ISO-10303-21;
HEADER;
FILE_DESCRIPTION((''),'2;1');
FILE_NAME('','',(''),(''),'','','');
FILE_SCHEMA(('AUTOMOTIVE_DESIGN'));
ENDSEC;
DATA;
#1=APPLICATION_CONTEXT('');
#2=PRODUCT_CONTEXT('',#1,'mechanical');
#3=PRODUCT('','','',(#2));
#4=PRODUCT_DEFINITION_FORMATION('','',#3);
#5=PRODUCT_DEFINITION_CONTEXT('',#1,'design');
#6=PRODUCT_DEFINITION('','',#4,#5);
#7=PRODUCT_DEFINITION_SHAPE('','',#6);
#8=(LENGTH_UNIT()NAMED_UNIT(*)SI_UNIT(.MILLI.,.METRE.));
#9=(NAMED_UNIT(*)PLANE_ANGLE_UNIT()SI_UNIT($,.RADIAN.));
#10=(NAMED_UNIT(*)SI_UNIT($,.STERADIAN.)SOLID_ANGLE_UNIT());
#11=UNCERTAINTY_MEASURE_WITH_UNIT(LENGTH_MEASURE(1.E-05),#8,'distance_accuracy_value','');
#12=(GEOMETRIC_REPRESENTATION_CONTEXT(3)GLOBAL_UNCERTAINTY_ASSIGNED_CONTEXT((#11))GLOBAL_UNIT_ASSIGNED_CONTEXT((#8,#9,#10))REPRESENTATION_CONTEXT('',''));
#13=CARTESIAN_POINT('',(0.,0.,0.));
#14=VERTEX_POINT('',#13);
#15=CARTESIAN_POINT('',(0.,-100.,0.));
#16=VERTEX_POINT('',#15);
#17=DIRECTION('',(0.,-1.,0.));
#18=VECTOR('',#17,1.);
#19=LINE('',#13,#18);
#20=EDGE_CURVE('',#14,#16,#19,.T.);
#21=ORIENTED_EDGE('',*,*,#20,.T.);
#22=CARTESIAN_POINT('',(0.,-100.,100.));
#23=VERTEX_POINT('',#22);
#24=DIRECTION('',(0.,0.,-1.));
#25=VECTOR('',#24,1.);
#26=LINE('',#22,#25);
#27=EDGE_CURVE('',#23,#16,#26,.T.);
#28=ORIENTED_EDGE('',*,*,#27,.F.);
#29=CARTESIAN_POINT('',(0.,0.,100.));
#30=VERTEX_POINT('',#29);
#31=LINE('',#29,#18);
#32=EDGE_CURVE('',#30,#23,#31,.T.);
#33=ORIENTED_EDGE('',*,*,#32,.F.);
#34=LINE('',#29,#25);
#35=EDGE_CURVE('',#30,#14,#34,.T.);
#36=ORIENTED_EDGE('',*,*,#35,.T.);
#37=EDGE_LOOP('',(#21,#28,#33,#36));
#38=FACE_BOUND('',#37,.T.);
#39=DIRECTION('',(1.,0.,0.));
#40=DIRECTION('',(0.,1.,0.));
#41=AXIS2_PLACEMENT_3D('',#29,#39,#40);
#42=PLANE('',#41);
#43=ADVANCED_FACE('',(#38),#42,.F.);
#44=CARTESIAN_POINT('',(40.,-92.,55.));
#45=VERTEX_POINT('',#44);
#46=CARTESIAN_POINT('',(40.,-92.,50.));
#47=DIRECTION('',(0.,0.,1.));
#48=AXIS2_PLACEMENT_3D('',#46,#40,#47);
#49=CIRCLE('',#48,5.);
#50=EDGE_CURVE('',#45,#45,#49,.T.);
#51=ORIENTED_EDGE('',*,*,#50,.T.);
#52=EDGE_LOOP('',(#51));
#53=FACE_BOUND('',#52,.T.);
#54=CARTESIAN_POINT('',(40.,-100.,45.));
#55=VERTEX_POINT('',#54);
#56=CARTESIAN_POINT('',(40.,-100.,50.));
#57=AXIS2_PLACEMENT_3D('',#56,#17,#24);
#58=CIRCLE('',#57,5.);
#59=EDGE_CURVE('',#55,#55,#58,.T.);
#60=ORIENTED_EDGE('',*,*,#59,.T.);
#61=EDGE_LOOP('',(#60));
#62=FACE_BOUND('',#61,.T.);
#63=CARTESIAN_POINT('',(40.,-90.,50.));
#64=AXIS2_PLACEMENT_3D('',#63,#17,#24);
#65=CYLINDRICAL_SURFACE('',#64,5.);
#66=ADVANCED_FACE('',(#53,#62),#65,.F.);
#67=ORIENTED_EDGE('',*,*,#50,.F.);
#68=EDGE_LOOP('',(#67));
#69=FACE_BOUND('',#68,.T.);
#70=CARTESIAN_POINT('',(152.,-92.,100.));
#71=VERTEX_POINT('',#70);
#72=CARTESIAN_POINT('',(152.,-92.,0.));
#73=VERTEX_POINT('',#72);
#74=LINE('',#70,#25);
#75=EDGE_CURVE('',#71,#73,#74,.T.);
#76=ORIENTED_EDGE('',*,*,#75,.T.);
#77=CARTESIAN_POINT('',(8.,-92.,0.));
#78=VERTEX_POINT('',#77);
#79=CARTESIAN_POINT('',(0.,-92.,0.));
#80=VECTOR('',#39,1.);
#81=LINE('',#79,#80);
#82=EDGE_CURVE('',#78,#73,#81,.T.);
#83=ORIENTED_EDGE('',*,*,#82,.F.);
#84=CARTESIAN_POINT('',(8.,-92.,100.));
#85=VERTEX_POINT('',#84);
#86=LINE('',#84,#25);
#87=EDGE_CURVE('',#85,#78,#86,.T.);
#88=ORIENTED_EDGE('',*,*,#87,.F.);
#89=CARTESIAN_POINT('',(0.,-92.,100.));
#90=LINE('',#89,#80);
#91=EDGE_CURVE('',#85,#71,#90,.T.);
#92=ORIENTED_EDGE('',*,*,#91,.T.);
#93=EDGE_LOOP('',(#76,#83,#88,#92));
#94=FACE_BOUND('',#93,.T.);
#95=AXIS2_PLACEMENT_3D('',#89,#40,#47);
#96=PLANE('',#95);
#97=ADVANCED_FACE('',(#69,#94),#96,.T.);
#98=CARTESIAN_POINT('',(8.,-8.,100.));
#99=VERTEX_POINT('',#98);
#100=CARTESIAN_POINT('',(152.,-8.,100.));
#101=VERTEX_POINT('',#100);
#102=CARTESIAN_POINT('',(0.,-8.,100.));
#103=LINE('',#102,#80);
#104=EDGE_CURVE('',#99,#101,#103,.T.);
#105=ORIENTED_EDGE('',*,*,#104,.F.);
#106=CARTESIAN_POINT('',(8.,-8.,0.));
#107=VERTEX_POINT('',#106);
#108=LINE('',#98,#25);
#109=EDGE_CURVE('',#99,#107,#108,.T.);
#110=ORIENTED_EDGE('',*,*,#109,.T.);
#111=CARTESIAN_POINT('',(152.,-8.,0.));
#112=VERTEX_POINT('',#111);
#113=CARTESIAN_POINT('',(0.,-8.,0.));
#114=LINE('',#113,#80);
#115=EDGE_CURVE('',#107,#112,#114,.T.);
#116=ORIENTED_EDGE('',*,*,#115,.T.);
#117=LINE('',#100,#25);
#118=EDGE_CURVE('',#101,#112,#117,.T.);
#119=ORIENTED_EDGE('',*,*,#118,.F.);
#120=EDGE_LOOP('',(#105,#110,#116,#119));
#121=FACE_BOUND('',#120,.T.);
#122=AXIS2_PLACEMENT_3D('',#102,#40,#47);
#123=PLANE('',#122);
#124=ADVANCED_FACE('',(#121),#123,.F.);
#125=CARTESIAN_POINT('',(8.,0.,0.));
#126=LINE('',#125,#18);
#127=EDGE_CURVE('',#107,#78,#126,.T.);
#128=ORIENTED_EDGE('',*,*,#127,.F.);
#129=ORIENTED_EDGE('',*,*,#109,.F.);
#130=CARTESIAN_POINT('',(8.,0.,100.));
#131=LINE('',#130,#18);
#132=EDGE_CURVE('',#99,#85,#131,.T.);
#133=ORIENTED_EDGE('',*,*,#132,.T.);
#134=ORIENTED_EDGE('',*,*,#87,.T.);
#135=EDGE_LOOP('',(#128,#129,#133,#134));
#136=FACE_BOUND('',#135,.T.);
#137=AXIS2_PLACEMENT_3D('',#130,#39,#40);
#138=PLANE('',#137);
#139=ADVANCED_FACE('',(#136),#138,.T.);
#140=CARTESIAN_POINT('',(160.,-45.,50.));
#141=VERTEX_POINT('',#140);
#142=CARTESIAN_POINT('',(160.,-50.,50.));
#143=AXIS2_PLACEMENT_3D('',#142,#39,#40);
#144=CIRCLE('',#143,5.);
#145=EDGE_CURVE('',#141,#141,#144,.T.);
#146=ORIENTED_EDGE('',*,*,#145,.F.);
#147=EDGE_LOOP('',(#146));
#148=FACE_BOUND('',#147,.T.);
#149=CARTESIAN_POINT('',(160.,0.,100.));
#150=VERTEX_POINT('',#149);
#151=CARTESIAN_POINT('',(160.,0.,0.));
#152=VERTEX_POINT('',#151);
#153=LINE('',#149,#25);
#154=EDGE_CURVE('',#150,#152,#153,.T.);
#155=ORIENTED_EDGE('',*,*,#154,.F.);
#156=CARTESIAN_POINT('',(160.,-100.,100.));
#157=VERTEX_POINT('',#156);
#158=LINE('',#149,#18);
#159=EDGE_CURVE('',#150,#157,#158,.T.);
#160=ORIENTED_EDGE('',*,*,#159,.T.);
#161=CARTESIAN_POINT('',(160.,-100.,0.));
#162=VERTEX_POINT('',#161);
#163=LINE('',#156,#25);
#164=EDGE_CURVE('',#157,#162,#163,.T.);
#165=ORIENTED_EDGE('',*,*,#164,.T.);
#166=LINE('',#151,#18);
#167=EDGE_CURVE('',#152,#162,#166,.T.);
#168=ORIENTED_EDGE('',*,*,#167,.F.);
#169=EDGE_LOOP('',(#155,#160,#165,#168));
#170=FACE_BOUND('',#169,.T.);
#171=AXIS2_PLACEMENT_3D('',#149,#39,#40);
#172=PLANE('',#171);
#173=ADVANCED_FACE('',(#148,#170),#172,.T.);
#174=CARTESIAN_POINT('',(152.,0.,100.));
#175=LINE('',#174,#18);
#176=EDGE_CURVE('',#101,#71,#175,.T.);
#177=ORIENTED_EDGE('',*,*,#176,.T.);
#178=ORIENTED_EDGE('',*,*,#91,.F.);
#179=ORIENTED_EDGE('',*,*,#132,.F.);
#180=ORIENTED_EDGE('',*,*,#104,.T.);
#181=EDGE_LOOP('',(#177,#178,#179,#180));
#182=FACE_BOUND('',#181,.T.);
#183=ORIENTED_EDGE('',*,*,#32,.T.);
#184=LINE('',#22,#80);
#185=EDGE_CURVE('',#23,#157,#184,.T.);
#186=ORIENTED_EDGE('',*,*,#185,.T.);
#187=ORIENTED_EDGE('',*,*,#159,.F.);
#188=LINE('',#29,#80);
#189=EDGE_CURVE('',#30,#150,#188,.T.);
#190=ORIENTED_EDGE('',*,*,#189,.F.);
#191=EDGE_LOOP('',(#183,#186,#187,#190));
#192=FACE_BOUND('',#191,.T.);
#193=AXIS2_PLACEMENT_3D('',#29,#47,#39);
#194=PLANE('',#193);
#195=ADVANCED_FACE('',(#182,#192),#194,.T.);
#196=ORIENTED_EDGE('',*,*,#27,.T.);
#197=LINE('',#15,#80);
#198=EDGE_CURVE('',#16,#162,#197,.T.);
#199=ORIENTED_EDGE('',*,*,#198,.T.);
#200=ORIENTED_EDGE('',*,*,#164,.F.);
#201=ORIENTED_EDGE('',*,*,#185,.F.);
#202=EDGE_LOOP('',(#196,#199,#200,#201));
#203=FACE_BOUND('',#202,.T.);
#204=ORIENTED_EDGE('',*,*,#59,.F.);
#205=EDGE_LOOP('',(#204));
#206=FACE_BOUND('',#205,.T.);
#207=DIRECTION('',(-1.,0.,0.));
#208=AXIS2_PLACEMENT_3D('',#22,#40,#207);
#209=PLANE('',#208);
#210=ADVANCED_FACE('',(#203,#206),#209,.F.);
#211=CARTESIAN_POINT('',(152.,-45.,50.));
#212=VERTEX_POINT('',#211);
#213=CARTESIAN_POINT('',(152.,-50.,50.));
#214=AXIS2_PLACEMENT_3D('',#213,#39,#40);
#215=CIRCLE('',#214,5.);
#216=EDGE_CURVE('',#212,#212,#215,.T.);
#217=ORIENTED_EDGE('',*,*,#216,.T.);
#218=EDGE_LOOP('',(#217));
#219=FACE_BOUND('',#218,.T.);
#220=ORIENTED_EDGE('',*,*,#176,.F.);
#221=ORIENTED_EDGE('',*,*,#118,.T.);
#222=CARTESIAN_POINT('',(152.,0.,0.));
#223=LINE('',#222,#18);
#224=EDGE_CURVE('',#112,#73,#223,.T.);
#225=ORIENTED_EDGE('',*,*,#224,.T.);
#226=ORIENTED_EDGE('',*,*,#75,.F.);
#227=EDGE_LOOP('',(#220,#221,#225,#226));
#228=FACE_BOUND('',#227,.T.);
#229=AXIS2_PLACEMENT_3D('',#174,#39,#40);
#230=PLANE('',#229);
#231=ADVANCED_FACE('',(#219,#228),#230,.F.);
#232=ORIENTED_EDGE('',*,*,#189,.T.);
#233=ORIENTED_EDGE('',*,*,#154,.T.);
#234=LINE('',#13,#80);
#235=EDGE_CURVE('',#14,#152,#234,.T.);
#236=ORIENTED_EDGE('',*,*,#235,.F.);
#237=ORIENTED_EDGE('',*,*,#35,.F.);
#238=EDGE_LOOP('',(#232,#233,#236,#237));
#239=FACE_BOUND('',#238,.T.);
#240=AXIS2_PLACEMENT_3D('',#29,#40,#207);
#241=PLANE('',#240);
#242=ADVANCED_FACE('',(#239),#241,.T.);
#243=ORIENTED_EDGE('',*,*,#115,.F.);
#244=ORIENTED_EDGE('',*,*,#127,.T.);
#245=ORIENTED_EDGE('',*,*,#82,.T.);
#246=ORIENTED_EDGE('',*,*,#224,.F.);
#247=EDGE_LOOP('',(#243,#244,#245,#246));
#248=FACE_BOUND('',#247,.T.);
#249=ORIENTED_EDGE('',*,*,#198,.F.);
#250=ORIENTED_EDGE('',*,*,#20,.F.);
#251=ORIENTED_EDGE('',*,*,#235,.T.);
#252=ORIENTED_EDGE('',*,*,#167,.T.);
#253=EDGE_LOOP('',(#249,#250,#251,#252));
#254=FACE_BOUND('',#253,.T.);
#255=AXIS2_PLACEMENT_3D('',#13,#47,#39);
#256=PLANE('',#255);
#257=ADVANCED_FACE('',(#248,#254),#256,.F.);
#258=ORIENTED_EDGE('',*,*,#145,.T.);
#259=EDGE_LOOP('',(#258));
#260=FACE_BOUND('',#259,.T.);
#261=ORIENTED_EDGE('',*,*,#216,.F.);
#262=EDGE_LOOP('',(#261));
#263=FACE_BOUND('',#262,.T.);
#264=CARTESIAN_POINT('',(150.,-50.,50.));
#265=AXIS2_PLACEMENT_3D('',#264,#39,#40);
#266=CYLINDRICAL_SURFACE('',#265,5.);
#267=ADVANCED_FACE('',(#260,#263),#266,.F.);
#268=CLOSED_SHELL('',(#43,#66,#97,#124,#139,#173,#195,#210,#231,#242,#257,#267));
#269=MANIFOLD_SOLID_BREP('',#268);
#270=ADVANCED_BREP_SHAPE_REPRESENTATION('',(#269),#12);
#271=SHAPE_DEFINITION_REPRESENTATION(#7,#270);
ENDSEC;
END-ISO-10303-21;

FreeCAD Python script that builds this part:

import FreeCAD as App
import Part
import Sketcher
from FreeCAD import Vector

doc = App.newDocument("Part")
body = doc.addObject("PartDesign::Body", "Body")

sketch1 = body.newObject("Sketcher::SketchObject", "Sketch")
sketch1.AttachmentSupport = (doc.getObject("XY_Plane"), [""])
sketch1.MapMode = "FlatFace"
sketch1.addGeometry([
    Part.LineSegment(Vector(0, 0, 0), Vector(0, -100, 0)),
    Part.LineSegment(Vector(0, -100, 0), Vector(160, -100, 0)),
    Part.LineSegment(Vector(160, -100, 0), Vector(160, 0, 0)),
    Part.LineSegment(Vector(160, 0, 0), Vector(0, 0, 0)),
    Part.LineSegment(Vector(152, -92, 0), Vector(8, -92, 0)),
    Part.LineSegment(Vector(8, -92, 0), Vector(8, -8, 0)),
    Part.LineSegment(Vector(8, -8, 0), Vector(152, -8, 0)),
    Part.LineSegment(Vector(152, -8, 0), Vector(152, -92, 0)),
], False)
sketch1.addConstraint([
    Sketcher.Constraint("Coincident", 0, 2, 1, 1),
    Sketcher.Constraint("Coincident", 1, 2, 2, 1),
    Sketcher.Constraint("Coincident", 2, 2, 3, 1),
    Sketcher.Constraint("Coincident", 3, 2, 0, 1),
    Sketcher.Constraint("Coincident", 4, 2, 5, 1),
    Sketcher.Constraint("Coincident", 5, 2, 6, 1),
    Sketcher.Constraint("Coincident", 6, 2, 7, 1),
    Sketcher.Constraint("Coincident", 7, 2, 4, 1),
    Sketcher.Constraint("Vertical", 0),
    Sketcher.Constraint("Horizontal", 1),
    Sketcher.Constraint("Vertical", 2),
    Sketcher.Constraint("Horizontal", 3),
    Sketcher.Constraint("Horizontal", 4),
    Sketcher.Constraint("Vertical", 5),
    Sketcher.Constraint("Horizontal", 6),
    Sketcher.Constraint("Vertical", 7),
    Sketcher.Constraint("Coincident", 3, 2, -1, 1),
    Sketcher.Constraint("DistanceX", 1, 1, 1, 2, 160.0),
    Sketcher.Constraint("DistanceX", 4, 2, 4, 1, 144.0),
    Sketcher.Constraint("DistanceY", 0, 2, 0, 1, 100.0),
    Sketcher.Constraint("DistanceY", 5, 1, 5, 2, 84.0),
    Sketcher.Constraint("DistanceX", -1, 1, 4, 2, 8.0),
    Sketcher.Constraint("DistanceY", 4, 2, -1, 1, 92.0),
])
pad1 = body.newObject("PartDesign::Pad", "Pad")
pad1.Profile = sketch1
pad1.Length = 100

sketch2 = body.newObject("Sketcher::SketchObject", "Sketch001")
sketch2.AttachmentSupport = (doc.getObject("XZ_Plane"), [""])
sketch2.MapMode = "FlatFace"
sketch2.AttachmentOffset = App.Placement(Vector(0, 0, 100), App.Rotation())
sketch2.addGeometry(Part.Circle(Vector(40, 50, 0), Vector(0, 0, 1), 5), False)
sketch2.addConstraint([
    Sketcher.Constraint("Diameter", 0, 10.0),
    Sketcher.Constraint("DistanceX", -1, 1, 0, 3, 40.0),
    Sketcher.Constraint("DistanceY", -1, 1, 0, 3, 50.0),
])
pocket1 = body.newObject("PartDesign::Pocket", "Pocket")
pocket1.Profile = sketch2
pocket1.Length = 10

sketch3 = body.newObject("Sketcher::SketchObject", "Sketch002")
sketch3.AttachmentSupport = (doc.getObject("YZ_Plane"), [""])
sketch3.MapMode = "FlatFace"
sketch3.AttachmentOffset = App.Placement(Vector(0, 0, 160), App.Rotation())
sketch3.addGeometry(Part.Circle(Vector(-50, 50, 0), Vector(0, 0, 1), 5), False)
sketch3.addConstraint([
    Sketcher.Constraint("Diameter", 0, 10.0),
    Sketcher.Constraint("DistanceX", 0, 3, -1, 1, 50.0),
    Sketcher.Constraint("DistanceY", -1, 1, 0, 3, 50.0),
])
pocket2 = body.newObject("PartDesign::Pocket", "Pocket001")
pocket2.Profile = sketch3
pocket2.Length = 10

doc.recompute()
